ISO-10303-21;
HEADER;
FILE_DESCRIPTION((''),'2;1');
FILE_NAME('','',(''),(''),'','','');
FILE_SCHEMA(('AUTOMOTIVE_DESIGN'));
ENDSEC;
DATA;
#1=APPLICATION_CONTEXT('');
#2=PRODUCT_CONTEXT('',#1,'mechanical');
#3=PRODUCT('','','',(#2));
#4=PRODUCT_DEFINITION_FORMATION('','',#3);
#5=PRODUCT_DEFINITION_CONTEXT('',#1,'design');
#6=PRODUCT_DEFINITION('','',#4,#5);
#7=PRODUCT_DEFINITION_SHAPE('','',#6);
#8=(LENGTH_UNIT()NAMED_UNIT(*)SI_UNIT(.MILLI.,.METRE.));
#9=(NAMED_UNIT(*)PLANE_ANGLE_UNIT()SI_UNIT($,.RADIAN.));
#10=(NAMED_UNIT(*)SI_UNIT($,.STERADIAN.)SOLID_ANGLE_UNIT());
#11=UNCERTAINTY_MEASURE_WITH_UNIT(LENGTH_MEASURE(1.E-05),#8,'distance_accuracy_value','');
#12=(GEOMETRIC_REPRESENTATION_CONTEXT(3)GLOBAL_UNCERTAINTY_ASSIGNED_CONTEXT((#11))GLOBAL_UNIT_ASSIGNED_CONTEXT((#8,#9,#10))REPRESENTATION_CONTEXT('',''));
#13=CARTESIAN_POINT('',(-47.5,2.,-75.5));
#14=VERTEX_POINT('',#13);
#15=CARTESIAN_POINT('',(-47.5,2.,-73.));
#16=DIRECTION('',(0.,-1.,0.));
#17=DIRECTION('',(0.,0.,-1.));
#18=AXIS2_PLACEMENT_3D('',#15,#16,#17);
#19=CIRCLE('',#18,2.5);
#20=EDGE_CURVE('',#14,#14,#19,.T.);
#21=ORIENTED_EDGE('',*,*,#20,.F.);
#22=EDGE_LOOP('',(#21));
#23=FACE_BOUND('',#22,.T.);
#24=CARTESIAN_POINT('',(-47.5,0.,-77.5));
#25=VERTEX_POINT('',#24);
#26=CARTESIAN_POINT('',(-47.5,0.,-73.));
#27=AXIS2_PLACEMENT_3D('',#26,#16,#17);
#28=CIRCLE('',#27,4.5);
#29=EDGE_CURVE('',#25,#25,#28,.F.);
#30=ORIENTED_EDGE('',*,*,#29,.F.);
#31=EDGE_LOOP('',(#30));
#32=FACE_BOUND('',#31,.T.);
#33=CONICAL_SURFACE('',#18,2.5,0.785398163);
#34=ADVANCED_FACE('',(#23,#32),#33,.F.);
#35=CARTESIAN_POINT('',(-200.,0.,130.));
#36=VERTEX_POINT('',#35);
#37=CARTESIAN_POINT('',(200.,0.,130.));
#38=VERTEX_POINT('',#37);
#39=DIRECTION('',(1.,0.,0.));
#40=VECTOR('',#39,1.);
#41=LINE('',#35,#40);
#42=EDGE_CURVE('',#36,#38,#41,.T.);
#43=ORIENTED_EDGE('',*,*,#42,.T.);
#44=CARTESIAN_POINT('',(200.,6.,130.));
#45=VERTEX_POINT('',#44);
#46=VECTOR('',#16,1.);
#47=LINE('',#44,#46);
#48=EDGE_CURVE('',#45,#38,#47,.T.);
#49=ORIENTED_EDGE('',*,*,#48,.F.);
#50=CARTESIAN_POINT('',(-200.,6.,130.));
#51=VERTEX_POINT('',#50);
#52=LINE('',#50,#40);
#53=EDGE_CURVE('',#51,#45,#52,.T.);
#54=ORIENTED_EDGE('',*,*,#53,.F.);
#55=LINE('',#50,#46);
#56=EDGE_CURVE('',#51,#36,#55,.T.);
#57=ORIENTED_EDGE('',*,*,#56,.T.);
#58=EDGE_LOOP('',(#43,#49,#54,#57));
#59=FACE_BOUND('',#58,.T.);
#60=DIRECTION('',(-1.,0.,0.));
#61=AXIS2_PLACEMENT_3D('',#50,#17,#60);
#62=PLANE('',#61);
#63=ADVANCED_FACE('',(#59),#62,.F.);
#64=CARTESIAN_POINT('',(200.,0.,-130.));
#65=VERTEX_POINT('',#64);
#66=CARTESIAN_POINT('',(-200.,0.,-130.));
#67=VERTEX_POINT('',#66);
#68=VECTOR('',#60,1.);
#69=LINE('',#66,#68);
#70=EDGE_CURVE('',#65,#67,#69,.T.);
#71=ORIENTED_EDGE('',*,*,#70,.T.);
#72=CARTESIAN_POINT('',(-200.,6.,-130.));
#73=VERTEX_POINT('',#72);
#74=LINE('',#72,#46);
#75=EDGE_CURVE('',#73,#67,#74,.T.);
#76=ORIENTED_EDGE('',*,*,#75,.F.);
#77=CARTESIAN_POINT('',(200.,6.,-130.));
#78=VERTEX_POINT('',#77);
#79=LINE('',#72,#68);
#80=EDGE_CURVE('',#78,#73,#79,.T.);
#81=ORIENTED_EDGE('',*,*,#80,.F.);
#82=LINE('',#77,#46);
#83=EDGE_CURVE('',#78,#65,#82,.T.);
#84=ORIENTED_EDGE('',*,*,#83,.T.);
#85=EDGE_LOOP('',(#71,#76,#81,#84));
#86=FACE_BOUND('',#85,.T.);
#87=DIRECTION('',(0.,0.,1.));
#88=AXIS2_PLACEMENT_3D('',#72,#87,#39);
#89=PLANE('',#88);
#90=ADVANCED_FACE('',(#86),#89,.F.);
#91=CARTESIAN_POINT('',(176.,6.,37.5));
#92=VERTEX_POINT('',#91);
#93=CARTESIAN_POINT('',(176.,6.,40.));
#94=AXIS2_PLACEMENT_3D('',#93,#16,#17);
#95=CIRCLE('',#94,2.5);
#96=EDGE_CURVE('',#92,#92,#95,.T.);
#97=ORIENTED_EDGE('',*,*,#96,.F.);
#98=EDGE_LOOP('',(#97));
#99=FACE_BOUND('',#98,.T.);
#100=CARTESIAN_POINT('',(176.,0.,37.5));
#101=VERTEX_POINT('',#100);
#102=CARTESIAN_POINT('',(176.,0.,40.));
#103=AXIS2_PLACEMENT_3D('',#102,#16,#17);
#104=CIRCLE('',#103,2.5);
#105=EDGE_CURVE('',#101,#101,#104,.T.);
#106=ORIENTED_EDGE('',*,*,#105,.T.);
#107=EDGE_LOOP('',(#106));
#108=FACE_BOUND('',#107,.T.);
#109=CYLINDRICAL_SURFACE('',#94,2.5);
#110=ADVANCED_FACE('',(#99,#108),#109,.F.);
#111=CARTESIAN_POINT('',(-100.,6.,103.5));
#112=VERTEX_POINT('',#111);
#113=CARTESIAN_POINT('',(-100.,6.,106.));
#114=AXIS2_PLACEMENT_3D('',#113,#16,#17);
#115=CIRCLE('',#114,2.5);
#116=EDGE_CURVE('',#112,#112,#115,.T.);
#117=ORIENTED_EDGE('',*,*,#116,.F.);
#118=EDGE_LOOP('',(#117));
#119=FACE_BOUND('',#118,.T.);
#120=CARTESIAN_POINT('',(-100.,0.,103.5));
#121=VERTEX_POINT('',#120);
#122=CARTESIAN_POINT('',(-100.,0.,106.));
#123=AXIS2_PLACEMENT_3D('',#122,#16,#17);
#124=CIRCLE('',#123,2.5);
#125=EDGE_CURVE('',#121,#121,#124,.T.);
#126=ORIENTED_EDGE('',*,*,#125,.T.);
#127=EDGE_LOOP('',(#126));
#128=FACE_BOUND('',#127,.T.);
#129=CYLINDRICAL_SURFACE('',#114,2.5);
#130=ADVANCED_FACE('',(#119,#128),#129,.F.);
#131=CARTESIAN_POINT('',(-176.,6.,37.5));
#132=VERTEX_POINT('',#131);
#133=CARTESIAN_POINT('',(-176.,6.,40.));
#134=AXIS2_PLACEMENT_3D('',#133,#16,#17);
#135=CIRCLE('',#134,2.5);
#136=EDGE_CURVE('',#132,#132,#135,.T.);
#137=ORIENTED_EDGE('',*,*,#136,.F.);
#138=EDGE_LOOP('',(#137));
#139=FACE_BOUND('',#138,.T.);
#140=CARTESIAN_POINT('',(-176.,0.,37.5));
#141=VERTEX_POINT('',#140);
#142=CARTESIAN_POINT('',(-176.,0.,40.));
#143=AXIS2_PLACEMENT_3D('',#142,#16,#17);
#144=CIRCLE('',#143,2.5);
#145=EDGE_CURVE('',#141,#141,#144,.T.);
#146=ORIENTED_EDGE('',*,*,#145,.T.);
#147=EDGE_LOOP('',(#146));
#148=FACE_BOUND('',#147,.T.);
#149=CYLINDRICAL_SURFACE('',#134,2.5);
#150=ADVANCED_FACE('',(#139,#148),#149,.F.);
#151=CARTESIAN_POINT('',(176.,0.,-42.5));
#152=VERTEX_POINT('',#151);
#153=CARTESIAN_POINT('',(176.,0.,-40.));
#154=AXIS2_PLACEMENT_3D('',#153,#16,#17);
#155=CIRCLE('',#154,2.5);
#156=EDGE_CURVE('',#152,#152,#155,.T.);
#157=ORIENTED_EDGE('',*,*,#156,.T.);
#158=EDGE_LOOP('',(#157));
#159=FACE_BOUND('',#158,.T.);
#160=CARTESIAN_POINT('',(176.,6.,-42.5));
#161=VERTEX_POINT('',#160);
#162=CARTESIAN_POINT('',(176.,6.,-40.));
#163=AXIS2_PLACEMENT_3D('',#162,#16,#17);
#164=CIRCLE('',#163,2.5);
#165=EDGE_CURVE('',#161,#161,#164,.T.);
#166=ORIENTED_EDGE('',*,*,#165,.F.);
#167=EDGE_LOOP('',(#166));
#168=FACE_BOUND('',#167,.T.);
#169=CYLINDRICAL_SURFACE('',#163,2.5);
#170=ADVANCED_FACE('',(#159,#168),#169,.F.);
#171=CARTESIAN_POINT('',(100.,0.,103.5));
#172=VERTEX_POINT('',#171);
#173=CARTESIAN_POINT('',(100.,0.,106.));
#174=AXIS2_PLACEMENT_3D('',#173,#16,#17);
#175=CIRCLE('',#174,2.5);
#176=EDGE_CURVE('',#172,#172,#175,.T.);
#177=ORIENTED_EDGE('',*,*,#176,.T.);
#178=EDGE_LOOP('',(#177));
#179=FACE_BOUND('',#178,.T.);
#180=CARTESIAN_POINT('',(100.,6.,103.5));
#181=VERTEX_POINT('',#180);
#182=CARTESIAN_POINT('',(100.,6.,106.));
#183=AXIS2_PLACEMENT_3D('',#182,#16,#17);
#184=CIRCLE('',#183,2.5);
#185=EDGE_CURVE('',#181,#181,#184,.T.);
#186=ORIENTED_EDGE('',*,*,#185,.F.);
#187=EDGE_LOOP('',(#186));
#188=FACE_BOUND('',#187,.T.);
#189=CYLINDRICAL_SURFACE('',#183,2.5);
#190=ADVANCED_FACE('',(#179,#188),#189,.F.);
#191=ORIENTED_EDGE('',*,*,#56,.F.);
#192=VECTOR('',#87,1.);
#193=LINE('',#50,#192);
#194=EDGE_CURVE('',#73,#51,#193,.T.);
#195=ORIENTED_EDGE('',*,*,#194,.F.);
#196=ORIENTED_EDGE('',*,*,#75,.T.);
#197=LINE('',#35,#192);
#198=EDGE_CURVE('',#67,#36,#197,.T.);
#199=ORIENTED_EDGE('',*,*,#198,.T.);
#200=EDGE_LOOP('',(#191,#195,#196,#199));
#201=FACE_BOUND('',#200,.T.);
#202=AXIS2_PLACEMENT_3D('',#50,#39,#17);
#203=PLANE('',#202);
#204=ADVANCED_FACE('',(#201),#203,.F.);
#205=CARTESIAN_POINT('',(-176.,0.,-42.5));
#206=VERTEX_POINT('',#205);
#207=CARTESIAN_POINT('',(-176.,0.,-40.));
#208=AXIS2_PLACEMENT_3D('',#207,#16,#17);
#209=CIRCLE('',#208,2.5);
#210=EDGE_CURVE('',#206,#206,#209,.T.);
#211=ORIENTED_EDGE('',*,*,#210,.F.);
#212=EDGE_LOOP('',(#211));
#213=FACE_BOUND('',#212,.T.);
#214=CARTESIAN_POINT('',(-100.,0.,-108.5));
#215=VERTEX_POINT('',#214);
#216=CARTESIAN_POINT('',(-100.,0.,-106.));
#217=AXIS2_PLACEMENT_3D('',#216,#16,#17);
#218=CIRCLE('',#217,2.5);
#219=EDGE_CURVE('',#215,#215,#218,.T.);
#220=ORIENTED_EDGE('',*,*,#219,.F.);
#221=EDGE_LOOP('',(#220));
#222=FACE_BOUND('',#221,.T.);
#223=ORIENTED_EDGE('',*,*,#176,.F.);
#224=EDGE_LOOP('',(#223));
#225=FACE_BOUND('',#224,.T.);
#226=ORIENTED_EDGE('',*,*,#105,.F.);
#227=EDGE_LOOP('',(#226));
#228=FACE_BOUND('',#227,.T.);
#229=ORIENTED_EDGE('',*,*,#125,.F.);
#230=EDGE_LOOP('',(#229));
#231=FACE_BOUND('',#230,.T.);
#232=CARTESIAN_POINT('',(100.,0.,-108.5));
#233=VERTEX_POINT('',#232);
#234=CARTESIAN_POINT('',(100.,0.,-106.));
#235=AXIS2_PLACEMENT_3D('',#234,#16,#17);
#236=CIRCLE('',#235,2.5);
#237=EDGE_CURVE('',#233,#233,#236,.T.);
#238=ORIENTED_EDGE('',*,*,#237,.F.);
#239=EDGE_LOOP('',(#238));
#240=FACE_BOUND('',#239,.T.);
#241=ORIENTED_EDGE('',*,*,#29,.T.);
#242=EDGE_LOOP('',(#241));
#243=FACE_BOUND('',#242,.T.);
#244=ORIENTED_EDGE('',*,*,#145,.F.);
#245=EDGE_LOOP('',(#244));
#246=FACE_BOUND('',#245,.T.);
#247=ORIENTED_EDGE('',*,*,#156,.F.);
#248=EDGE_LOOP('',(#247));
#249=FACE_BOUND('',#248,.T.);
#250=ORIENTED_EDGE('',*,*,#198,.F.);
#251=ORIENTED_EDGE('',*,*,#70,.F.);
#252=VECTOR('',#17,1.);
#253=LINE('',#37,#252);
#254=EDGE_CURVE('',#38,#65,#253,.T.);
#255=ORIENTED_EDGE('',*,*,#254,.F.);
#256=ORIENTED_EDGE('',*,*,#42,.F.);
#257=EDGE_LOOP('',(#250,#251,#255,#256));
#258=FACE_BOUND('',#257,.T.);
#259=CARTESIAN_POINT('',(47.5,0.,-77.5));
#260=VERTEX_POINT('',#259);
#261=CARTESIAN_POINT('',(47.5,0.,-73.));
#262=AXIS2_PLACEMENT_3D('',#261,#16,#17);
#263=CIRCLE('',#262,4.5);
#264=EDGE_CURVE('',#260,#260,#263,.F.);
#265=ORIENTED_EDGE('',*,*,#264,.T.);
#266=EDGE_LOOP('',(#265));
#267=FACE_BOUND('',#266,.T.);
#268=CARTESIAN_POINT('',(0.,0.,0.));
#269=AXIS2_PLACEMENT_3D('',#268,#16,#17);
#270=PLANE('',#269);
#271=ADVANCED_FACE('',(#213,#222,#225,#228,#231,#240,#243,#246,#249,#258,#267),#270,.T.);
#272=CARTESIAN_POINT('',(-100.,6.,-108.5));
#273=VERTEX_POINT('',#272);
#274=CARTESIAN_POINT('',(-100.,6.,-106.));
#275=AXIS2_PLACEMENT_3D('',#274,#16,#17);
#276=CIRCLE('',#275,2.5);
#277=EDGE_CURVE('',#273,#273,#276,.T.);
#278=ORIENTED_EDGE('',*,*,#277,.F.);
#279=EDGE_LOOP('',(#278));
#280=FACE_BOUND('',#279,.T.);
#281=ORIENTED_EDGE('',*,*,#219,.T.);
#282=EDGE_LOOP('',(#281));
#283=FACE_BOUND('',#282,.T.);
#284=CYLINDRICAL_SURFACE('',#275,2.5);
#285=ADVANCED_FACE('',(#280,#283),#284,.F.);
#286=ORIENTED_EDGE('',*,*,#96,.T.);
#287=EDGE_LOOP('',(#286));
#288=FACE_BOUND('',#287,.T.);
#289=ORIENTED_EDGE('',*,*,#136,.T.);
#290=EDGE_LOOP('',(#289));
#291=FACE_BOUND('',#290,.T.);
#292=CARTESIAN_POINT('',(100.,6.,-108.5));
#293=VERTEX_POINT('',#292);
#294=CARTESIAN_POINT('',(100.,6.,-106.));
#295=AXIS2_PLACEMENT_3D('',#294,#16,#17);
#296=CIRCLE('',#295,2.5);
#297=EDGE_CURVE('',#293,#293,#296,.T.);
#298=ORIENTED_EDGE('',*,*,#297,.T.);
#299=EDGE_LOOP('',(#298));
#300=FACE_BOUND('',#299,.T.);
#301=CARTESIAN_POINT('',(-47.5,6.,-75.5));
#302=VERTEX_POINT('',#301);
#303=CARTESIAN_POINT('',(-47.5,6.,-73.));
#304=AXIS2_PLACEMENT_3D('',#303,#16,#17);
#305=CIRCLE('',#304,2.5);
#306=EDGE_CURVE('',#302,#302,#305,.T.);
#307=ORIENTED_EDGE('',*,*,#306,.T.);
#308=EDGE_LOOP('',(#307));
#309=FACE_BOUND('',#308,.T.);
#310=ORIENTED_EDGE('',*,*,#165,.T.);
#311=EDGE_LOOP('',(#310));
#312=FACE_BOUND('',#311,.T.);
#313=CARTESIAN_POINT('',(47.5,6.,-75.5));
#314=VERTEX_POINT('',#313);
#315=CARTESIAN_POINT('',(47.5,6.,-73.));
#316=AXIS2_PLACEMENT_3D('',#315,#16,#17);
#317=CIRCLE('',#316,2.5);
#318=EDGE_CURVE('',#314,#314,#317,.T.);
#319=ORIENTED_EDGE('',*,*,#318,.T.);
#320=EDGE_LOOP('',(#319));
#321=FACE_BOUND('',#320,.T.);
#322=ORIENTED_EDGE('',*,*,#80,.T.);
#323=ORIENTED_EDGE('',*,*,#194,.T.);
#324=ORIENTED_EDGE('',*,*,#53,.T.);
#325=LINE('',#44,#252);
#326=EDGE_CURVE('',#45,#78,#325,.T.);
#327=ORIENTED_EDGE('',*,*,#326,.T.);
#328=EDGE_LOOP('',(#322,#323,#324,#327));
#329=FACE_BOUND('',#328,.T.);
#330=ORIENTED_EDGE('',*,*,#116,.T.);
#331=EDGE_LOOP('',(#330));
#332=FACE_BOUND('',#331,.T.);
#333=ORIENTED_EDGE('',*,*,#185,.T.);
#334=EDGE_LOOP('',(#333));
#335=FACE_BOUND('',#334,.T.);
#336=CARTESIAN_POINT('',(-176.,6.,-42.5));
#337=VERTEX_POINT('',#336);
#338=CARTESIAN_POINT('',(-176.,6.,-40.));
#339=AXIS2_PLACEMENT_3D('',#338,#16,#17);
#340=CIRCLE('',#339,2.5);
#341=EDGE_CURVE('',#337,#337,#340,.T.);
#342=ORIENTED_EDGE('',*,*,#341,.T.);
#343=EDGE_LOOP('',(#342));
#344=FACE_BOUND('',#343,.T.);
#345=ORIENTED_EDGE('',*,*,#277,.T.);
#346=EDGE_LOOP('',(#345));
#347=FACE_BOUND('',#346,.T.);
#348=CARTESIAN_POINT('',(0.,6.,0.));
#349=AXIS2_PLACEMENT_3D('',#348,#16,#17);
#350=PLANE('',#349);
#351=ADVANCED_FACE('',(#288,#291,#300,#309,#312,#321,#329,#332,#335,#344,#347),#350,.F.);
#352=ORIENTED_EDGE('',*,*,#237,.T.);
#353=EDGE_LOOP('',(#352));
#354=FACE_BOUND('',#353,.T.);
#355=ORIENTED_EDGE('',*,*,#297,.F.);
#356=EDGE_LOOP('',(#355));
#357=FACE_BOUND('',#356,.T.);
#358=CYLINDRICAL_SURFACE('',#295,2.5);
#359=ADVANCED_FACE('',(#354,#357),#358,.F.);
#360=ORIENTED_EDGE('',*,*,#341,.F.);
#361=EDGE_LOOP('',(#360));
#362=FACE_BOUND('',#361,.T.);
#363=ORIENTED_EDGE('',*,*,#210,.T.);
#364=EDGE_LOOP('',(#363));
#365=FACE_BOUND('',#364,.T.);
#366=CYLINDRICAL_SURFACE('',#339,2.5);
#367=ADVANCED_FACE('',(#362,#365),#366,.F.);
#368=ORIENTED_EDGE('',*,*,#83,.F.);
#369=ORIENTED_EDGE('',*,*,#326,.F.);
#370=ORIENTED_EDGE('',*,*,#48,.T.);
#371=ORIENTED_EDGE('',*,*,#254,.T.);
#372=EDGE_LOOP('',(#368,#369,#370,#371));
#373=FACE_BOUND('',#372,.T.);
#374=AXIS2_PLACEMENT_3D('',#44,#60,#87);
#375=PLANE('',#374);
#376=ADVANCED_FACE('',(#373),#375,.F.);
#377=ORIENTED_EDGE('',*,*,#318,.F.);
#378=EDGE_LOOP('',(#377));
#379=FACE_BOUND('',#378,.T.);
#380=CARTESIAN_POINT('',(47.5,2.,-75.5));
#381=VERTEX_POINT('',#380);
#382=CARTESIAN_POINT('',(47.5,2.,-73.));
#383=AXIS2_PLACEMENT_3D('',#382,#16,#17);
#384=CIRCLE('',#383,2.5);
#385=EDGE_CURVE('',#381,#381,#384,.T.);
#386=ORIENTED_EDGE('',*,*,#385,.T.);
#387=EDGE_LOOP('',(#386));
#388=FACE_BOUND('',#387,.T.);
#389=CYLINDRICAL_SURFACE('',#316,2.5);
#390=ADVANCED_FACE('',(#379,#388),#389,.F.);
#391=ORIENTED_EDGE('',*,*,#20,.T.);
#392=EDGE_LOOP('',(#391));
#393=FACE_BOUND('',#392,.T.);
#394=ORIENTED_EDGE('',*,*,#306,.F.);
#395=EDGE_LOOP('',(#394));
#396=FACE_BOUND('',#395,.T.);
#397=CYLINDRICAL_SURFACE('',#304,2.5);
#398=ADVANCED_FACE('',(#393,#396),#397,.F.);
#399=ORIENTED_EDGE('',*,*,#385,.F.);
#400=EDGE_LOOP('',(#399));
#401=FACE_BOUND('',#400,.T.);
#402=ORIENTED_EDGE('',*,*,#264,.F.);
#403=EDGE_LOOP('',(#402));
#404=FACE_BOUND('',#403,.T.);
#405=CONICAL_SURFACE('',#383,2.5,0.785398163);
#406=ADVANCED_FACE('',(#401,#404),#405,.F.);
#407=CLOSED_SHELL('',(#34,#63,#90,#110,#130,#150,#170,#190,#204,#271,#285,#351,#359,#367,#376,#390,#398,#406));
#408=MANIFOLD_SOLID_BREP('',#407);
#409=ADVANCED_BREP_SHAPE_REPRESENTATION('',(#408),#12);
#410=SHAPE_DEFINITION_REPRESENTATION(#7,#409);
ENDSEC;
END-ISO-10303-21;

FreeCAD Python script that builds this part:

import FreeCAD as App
import Part
import Sketcher

V = App.Vector


def edges_at(feature, points):
    """Names of the edges that pass closest to the given points."""
    edges = feature.Shape.Edges
    near = lambda p: min(range(len(edges)), key=lambda i: edges[i].distToShape(Part.Vertex(*p))[0])
    return sorted({f"Edge{near(p) + 1}" for p in points})

doc = App.newDocument("Part")
body = doc.addObject("PartDesign::Body", "Body")

sketch1 = body.newObject("Sketcher::SketchObject", "Sketch")
sketch1.AttachmentSupport = (doc.getObject("XZ_Plane"), [""])
sketch1.MapMode = "FlatFace"
sketch1.addGeometry(Part.LineSegment(V(-200, -130, 0), V(-200, 130, 0)), False)
sketch1.addGeometry(Part.LineSegment(V(-200, 130, 0), V(200, 130, 0)), False)
sketch1.addGeometry(Part.LineSegment(V(200, 130, 0), V(200, -130, 0)), False)
sketch1.addGeometry(Part.LineSegment(V(200, -130, 0), V(-200, -130, 0)), False)
sketch1.addConstraint(Sketcher.Constraint("Coincident", 0, 2, 1, 1))
sketch1.addConstraint(Sketcher.Constraint("Coincident", 1, 2, 2, 1))
sketch1.addConstraint(Sketcher.Constraint("Coincident", 2, 2, 3, 1))
sketch1.addConstraint(Sketcher.Constraint("Coincident", 3, 2, 0, 1))
sketch1.addConstraint(Sketcher.Constraint("Vertical", 0))
sketch1.addConstraint(Sketcher.Constraint("Horizontal", 1))
sketch1.addConstraint(Sketcher.Constraint("Vertical", 2))
sketch1.addConstraint(Sketcher.Constraint("Horizontal", 3))
sketch1.addConstraint(Sketcher.Constraint("Symmetric", 0, 2, 2, 2, -1, 1))
sketch1.addConstraint(Sketcher.Constraint("DistanceX", 1, 1, 1, 2, 400.0))
sketch1.addConstraint(Sketcher.Constraint("DistanceY", 0, 1, 0, 2, 260.0))
pad1 = body.newObject("PartDesign::Pad", "Pad")
pad1.Profile = sketch1
pad1.Length = 6
pad1.Reversed = True

sketch2 = body.newObject("Sketcher::SketchObject", "Sketch001")
sketch2.AttachmentSupport = (doc.getObject("XZ_Plane"), [""])
sketch2.MapMode = "FlatFace"
sketch2.addGeometry(Part.Circle(V(-100, 106, 0), V(0, 0, 1), 2.5), False)
sketch2.addGeometry(Part.Circle(V(100, 106, 0), V(0, 0, 1), 2.5), False)
sketch2.addGeometry(Part.Circle(V(176, 40, 0), V(0, 0, 1), 2.5), False)
sketch2.addGeometry(Part.Circle(V(176, -40, 0), V(0, 0, 1), 2.5), False)
sketch2.addGeometry(Part.Circle(V(100, -106, 0), V(0, 0, 1), 2.5), False)
sketch2.addGeometry(Part.Circle(V(-100, -106, 0), V(0, 0, 1), 2.5), False)
sketch2.addGeometry(Part.Circle(V(-176, -40, 0), V(0, 0, 1), 2.5), False)
sketch2.addGeometry(Part.Circle(V(-176, 40, 0), V(0, 0, 1), 2.5), False)
sketch2.addConstraint(Sketcher.Constraint("Equal", 0, 1))
sketch2.addConstraint(Sketcher.Constraint("Equal", 1, 2))
sketch2.addConstraint(Sketcher.Constraint("Equal", 2, 3))
sketch2.addConstraint(Sketcher.Constraint("Equal", 3, 4))
sketch2.addConstraint(Sketcher.Constraint("Equal", 4, 5))
sketch2.addConstraint(Sketcher.Constraint("Equal", 5, 6))
sketch2.addConstraint(Sketcher.Constraint("Equal", 6, 7))
sketch2.addConstraint(Sketcher.Constraint("Symmetric", 0, 3, 4, 3, -1, 1))
sketch2.addConstraint(Sketcher.Constraint("Symmetric", 1, 3, 5, 3, -1, 1))
sketch2.addConstraint(Sketcher.Constraint("Symmetric", 2, 3, 6, 3, -1, 1))
sketch2.addConstraint(Sketcher.Constraint("Symmetric", 3, 3, 7, 3, -1, 1))
sketch2.addConstraint(Sketcher.Constraint("Symmetric", 0, 3, 1, 3, -2))
sketch2.addConstraint(Sketcher.Constraint("Symmetric", 3, 3, 6, 3, -2))
sketch2.addConstraint(Sketcher.Constraint("Diameter", 0, 5.0))
sketch2.addConstraint(Sketcher.Constraint("DistanceX", 0, 3, -1, 1, 100.0))
sketch2.addConstraint(Sketcher.Constraint("DistanceY", -1, 1, 0, 3, 106.0))
sketch2.addConstraint(Sketcher.Constraint("DistanceX", -1, 1, 2, 3, 176.0))
sketch2.addConstraint(Sketcher.Constraint("DistanceY", -1, 1, 2, 3, 40.0))
pocket1 = body.newObject("PartDesign::Pocket", "Pocket")
pocket1.Profile = sketch2
pocket1.Type = "ThroughAll"

sketch3 = body.newObject("Sketcher::SketchObject", "Sketch002")
sketch3.AttachmentSupport = (doc.getObject("XZ_Plane"), [""])
sketch3.MapMode = "FlatFace"
sketch3.addGeometry(Part.Circle(V(47.5, -73, 0), V(0, 0, 1), 2.5), False)
sketch3.addGeometry(Part.Circle(V(-47.5, -73, 0), V(0, 0, 1), 2.5), False)
sketch3.addConstraint(Sketcher.Constraint("Equal", 0, 1))
sketch3.addConstraint(Sketcher.Constraint("Symmetric", 0, 3, 1, 3, -2))
sketch3.addConstraint(Sketcher.Constraint("Diameter", 0, 5.0))
sketch3.addConstraint(Sketcher.Constraint("DistanceY", 0, 3, -1, 1, 73.0))
sketch3.addConstraint(Sketcher.Constraint("DistanceX", 1, 3, 0, 3, 95.0))
pocket2 = body.newObject("PartDesign::Pocket", "Pocket001")
pocket2.Profile = sketch3
pocket2.Type = "ThroughAll"
doc.recompute()

chamfer = body.newObject("PartDesign::Chamfer", "Chamfer")
chamfer.Base = (pocket2, edges_at(pocket2, [(47.5, 0, -70.5), (-47.5, 0, -70.5)]))
chamfer.Size = 2

doc.recompute()
